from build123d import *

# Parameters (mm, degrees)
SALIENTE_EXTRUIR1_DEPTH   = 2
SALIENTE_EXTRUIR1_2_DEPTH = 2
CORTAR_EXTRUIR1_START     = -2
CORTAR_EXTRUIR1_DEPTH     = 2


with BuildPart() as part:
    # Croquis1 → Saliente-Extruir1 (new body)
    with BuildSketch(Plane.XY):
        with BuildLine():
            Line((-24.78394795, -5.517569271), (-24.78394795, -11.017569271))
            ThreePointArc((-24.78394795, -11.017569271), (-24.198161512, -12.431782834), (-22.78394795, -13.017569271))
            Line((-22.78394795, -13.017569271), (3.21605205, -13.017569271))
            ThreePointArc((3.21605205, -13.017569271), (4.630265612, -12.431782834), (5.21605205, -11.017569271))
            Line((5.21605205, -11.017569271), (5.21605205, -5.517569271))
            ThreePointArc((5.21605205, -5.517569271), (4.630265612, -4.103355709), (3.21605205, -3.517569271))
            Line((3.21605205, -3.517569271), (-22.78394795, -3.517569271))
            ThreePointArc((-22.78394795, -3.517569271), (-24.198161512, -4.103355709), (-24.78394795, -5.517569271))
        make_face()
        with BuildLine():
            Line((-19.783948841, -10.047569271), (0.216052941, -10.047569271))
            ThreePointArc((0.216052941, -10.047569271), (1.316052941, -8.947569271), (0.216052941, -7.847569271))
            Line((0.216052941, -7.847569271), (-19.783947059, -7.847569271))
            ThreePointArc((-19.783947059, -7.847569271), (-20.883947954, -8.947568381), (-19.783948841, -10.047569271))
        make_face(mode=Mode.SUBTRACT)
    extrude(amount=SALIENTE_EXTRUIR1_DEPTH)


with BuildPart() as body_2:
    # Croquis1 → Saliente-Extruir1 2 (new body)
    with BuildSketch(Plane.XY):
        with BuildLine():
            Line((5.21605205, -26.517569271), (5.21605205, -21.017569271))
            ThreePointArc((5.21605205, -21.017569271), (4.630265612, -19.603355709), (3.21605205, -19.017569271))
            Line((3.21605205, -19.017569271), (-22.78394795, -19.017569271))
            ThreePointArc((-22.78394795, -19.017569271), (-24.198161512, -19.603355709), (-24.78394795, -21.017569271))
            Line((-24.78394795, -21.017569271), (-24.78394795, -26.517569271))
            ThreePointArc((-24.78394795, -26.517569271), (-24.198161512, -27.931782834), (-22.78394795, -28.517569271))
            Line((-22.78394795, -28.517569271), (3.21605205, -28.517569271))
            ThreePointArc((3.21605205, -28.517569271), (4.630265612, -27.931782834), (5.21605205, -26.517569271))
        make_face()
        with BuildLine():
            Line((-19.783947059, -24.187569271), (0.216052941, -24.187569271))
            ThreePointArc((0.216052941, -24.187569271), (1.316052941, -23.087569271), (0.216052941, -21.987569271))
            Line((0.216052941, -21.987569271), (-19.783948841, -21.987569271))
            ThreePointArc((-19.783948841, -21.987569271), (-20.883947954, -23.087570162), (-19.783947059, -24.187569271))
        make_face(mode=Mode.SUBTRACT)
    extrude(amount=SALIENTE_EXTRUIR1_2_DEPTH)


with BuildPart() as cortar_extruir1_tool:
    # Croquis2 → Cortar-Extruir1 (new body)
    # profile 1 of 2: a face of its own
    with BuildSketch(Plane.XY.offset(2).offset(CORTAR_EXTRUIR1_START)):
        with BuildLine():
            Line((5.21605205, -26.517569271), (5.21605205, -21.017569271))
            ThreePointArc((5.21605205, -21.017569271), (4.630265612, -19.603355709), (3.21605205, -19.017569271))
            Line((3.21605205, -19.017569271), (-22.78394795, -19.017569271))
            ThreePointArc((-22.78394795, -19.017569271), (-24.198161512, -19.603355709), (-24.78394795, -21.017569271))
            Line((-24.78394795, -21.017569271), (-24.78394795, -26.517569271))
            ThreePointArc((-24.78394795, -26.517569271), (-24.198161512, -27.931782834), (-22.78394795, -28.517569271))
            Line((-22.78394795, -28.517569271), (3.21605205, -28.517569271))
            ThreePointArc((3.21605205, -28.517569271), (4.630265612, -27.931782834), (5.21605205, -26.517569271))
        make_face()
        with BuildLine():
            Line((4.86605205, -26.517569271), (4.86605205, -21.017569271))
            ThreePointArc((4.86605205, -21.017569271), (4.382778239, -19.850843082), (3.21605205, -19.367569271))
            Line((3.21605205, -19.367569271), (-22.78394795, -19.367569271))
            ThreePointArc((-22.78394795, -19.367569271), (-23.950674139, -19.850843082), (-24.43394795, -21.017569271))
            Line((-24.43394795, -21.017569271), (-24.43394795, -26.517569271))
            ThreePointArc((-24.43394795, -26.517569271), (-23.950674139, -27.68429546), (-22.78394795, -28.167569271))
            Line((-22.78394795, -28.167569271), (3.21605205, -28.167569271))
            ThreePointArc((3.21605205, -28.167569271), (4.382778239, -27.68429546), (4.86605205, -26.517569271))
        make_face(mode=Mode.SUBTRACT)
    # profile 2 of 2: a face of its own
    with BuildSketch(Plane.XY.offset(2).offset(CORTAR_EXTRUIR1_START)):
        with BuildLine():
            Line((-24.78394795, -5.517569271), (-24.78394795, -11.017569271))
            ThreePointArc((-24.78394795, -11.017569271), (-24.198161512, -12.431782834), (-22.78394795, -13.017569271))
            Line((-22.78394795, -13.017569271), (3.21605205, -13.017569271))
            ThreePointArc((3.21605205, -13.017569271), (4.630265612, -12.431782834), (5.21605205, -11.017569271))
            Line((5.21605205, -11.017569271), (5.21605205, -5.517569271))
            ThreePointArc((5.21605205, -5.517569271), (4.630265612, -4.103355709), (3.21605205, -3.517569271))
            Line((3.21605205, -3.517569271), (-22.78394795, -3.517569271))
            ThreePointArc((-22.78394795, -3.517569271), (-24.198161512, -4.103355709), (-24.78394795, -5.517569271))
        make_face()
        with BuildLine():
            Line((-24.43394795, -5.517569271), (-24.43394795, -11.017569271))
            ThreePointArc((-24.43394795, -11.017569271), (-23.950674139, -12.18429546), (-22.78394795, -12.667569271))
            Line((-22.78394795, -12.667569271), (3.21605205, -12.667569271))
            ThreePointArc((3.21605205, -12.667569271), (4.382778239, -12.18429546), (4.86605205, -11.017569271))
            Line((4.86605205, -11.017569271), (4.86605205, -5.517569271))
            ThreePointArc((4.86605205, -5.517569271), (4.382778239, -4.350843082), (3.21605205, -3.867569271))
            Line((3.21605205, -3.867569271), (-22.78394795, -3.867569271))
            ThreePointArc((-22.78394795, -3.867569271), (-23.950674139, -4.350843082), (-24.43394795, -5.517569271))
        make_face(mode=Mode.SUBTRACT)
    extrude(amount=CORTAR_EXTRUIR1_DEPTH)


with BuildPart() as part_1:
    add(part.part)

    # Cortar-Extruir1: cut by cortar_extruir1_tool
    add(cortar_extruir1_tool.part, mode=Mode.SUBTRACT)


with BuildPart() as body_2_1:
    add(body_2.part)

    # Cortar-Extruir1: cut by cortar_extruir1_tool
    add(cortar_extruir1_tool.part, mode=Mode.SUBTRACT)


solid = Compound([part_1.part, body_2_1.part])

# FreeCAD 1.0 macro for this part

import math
import FreeCAD as App
import Part
import Sketcher

V = App.Vector
Q = App.Units.Quantity

doc = App.newDocument("Part")
body = doc.addObject("PartDesign::Body", "Body")

# Sketch on XY plane
sketch1 = body.newObject("Sketcher::SketchObject", "Sketch")
sketch1.AttachmentSupport = (doc.getObject("XY_Plane"), [""])
sketch1.MapMode = "FlatFace"
sketch1.addGeometry(Part.LineSegment(V(-24.8, -5.5, 0), V(-24.8, -11, 0)), False)
sketch1.addGeometry(Part.ArcOfCircle(Part.Circle(V(-22.8, -11, 0), V(0, 0, 1), 2), math.radians(180), math.radians(270)), False)
sketch1.addGeometry(Part.LineSegment(V(-22.8, -13, 0), V(3.2, -13, 0)), False)
sketch1.addGeometry(Part.ArcOfCircle(Part.Circle(V(3.2, -11, 0), V(0, 0, 1), 2), math.radians(-90), math.radians(0)), False)
sketch1.addGeometry(Part.LineSegment(V(5.2, -11, 0), V(5.2, -5.5, 0)), False)
sketch1.addGeometry(Part.ArcOfCircle(Part.Circle(V(3.2, -5.5, 0), V(0, 0, 1), 2), math.radians(0), math.radians(90)), False)
sketch1.addGeometry(Part.LineSegment(V(3.2, -3.5, 0), V(-22.8, -3.5, 0)), False)
sketch1.addGeometry(Part.ArcOfCircle(Part.Circle(V(-22.8, -5.5, 0), V(0, 0, 1), 2), math.radians(90), math.radians(180)), False)
sketch1.addGeometry(Part.LineSegment(V(0.2, -10, 0), V(-19.8, -10, 0)), False)
sketch1.addGeometry(Part.ArcOfCircle(Part.Circle(V(-19.8, -8.9, 0), V(0, 0, 1), 1.1), math.radians(90), math.radians(270)), False)
sketch1.addGeometry(Part.LineSegment(V(-19.8, -7.8, 0), V(0.2, -7.8, 0)), False)
sketch1.addGeometry(Part.ArcOfCircle(Part.Circle(V(0.2, -8.9, 0), V(0, 0, 1), 1.1), math.radians(-90), math.radians(90)), False)
sketch1.addConstraint(Sketcher.Constraint("Tangent", 0, 2, 1, 1))
sketch1.addConstraint(Sketcher.Constraint("Tangent", 1, 2, 2, 1))
sketch1.addConstraint(Sketcher.Constraint("Tangent", 2, 2, 3, 1))
sketch1.addConstraint(Sketcher.Constraint("Tangent", 3, 2, 4, 1))
sketch1.addConstraint(Sketcher.Constraint("Tangent", 4, 2, 5, 1))
sketch1.addConstraint(Sketcher.Constraint("Tangent", 5, 2, 6, 1))
sketch1.addConstraint(Sketcher.Constraint("Tangent", 6, 2, 7, 1))
sketch1.addConstraint(Sketcher.Constraint("Tangent", 7, 2, 0, 1))
sketch1.addConstraint(Sketcher.Constraint("Tangent", 8, 2, 9, 2))
sketch1.addConstraint(Sketcher.Constraint("Tangent", 9, 1, 10, 1))
sketch1.addConstraint(Sketcher.Constraint("Tangent", 10, 2, 11, 2))
sketch1.addConstraint(Sketcher.Constraint("Tangent", 11, 1, 8, 1))
sketch1.addConstraint(Sketcher.Constraint("Vertical", 0))
sketch1.addConstraint(Sketcher.Constraint("Horizontal", 2))
sketch1.addConstraint(Sketcher.Constraint("Vertical", 4))
sketch1.addConstraint(Sketcher.Constraint("Horizontal", 6))
sketch1.addConstraint(Sketcher.Constraint("Horizontal", 8))
sketch1.addConstraint(Sketcher.Constraint("Horizontal", 10))
sketch1.addConstraint(Sketcher.Constraint("Equal", 1, 3))
sketch1.addConstraint(Sketcher.Constraint("Equal", 3, 5))
sketch1.addConstraint(Sketcher.Constraint("Equal", 5, 7))
sketch1.addConstraint(Sketcher.Constraint("Radius", 1, Q("2 mm")))
sketch1.addConstraint(Sketcher.Constraint("Radius", 9, Q("1.1 mm")))
sketch1.addConstraint(Sketcher.Constraint("DistanceX", 2, 1, 2, 2, Q("26 mm")))
sketch1.addConstraint(Sketcher.Constraint("DistanceX", 8, 2, 8, 1, Q("20.000002 mm")))
sketch1.addConstraint(Sketcher.Constraint("DistanceY", 0, 2, 0, 1, Q("5.5 mm")))
sketch1.addConstraint(Sketcher.Constraint("DistanceX", 1, 3, 9, 3, Q("3 mm")))
sketch1.addConstraint(Sketcher.Constraint("DistanceY", 1, 3, 9, 3, Q("2.07 mm")))
sketch1.addConstraint(Sketcher.Constraint("DistanceY", 1, 3, -1, 1, Q("11.017569 mm")))
sketch1.addConstraint(Sketcher.Constraint("DistanceX", 8, 2, -1, 1, Q("19.783949 mm")))
pad1 = body.newObject("PartDesign::Pad", "Pad")
pad1.Profile = sketch1
pad1.Length = 2
body2 = doc.addObject("PartDesign::Body", "Body001")

# Sketch on XY plane
sketch2 = body2.newObject("Sketcher::SketchObject", "Sketch001")
sketch2.AttachmentSupport = (doc.getObject("XY_Plane001"), [""])
sketch2.MapMode = "FlatFace"
sketch2.addGeometry(Part.LineSegment(V(5.2, -26.5, 0), V(5.2, -21, 0)), False)
sketch2.addGeometry(Part.ArcOfCircle(Part.Circle(V(3.2, -21, 0), V(0, 0, 1), 2), math.radians(0), math.radians(90)), False)
sketch2.addGeometry(Part.LineSegment(V(3.2, -19, 0), V(-22.8, -19, 0)), False)
sketch2.addGeometry(Part.ArcOfCircle(Part.Circle(V(-22.8, -21, 0), V(0, 0, 1), 2), math.radians(90), math.radians(180)), False)
sketch2.addGeometry(Part.LineSegment(V(-24.8, -21, 0), V(-24.8, -26.5, 0)), False)
sketch2.addGeometry(Part.ArcOfCircle(Part.Circle(V(-22.8, -26.5, 0), V(0, 0, 1), 2), math.radians(180), math.radians(270)), False)
sketch2.addGeometry(Part.LineSegment(V(-22.8, -28.5, 0), V(3.2, -28.5, 0)), False)
sketch2.addGeometry(Part.ArcOfCircle(Part.Circle(V(3.2, -26.5, 0), V(0, 0, 1), 2), math.radians(-90), math.radians(0)), False)
sketch2.addGeometry(Part.LineSegment(V(0.2, -24.2, 0), V(-19.8, -24.2, 0)), False)
sketch2.addGeometry(Part.ArcOfCircle(Part.Circle(V(-19.8, -23.1, 0), V(0, 0, 1), 1.1), math.radians(90), math.radians(270)), False)
sketch2.addGeometry(Part.LineSegment(V(-19.8, -22, 0), V(0.2, -22, 0)), False)
sketch2.addGeometry(Part.ArcOfCircle(Part.Circle(V(0.2, -23.1, 0), V(0, 0, 1), 1.1), math.radians(-90), math.radians(90)), False)
sketch2.addConstraint(Sketcher.Constraint("Tangent", 0, 2, 1, 1))
sketch2.addConstraint(Sketcher.Constraint("Tangent", 1, 2, 2, 1))
sketch2.addConstraint(Sketcher.Constraint("Tangent", 2, 2, 3, 1))
sketch2.addConstraint(Sketcher.Constraint("Tangent", 3, 2, 4, 1))
sketch2.addConstraint(Sketcher.Constraint("Tangent", 4, 2, 5, 1))
sketch2.addConstraint(Sketcher.Constraint("Tangent", 5, 2, 6, 1))
sketch2.addConstraint(Sketcher.Constraint("Tangent", 6, 2, 7, 1))
sketch2.addConstraint(Sketcher.Constraint("Tangent", 7, 2, 0, 1))
sketch2.addConstraint(Sketcher.Constraint("Tangent", 8, 2, 9, 2))
sketch2.addConstraint(Sketcher.Constraint("Tangent", 9, 1, 10, 1))
sketch2.addConstraint(Sketcher.Constraint("Tangent", 10, 2, 11, 2))
sketch2.addConstraint(Sketcher.Constraint("Tangent", 11, 1, 8, 1))
sketch2.addConstraint(Sketcher.Constraint("Vertical", 0))
sketch2.addConstraint(Sketcher.Constraint("Horizontal", 2))
sketch2.addConstraint(Sketcher.Constraint("Vertical", 4))
sketch2.addConstraint(Sketcher.Constraint("Horizontal", 6))
sketch2.addConstraint(Sketcher.Constraint("Horizontal", 8))
sketch2.addConstraint(Sketcher.Constraint("Horizontal", 10))
sketch2.addConstraint(Sketcher.Constraint("Equal", 1, 3))
sketch2.addConstraint(Sketcher.Constraint("Equal", 3, 5))
sketch2.addConstraint(Sketcher.Constraint("Equal", 5, 7))
sketch2.addConstraint(Sketcher.Constraint("Radius", 1, Q("2 mm")))
sketch2.addConstraint(Sketcher.Constraint("Radius", 9, Q("1.1 mm")))
sketch2.addConstraint(Sketcher.Constraint("DistanceX", 2, 2, 2, 1, Q("26 mm")))
sketch2.addConstraint(Sketcher.Constraint("DistanceX", 8, 2, 8, 1, Q("20 mm")))
sketch2.addConstraint(Sketcher.Constraint("DistanceY", 0, 1, 0, 2, Q("5.5 mm")))
sketch2.addConstraint(Sketcher.Constraint("DistanceX", 3, 3, 9, 3, Q("3 mm")))
sketch2.addConstraint(Sketcher.Constraint("DistanceY", 9, 3, 3, 3, Q("2.07 mm")))
sketch2.addConstraint(Sketcher.Constraint("DistanceY", 1, 3, -1, 1, Q("21.017569 mm")))
sketch2.addConstraint(Sketcher.Constraint("DistanceX", 9, 1, -1, 1, Q("19.783949 mm")))
pad2 = body2.newObject("PartDesign::Pad", "Pad001")
pad2.Profile = sketch2
pad2.Length = 2
body3 = doc.addObject("PartDesign::Body", "Body002")
body3.AllowCompound = True

# Sketch on XY plane
sketch3 = body3.newObject("Sketcher::SketchObject", "Sketch002")
sketch3.AttachmentSupport = (doc.getObject("XY_Plane002"), [""])
sketch3.MapMode = "FlatFace"
sketch3.addGeometry(Part.LineSegment(V(5.2, -26.5, 0), V(5.2, -21, 0)), False)
sketch3.addGeometry(Part.ArcOfCircle(Part.Circle(V(3.2, -21, 0), V(0, 0, 1), 2), math.radians(0), math.radians(90)), False)
sketch3.addGeometry(Part.LineSegment(V(3.2, -19, 0), V(-22.8, -19, 0)), False)
sketch3.addGeometry(Part.ArcOfCircle(Part.Circle(V(-22.8, -21, 0), V(0, 0, 1), 2), math.radians(90), math.radians(180)), False)
sketch3.addGeometry(Part.LineSegment(V(-24.8, -21, 0), V(-24.8, -26.5, 0)), False)
sketch3.addGeometry(Part.ArcOfCircle(Part.Circle(V(-22.8, -26.5, 0), V(0, 0, 1), 2), math.radians(180), math.radians(270)), False)
sketch3.addGeometry(Part.LineSegment(V(-22.8, -28.5, 0), V(3.2, -28.5, 0)), False)
sketch3.addGeometry(Part.ArcOfCircle(Part.Circle(V(3.2, -26.5, 0), V(0, 0, 1), 2), math.radians(-90), math.radians(0)), False)
sketch3.addGeometry(Part.LineSegment(V(4.9, -21, 0), V(4.9, -26.5, 0)), False)
sketch3.addGeometry(Part.ArcOfCircle(Part.Circle(V(3.2, -26.5, 0), V(0, 0, 1), 1.6), math.radians(-90), math.radians(0)), False)
sketch3.addGeometry(Part.LineSegment(V(3.2, -28.2, 0), V(-22.8, -28.2, 0)), False)
sketch3.addGeometry(Part.ArcOfCircle(Part.Circle(V(-22.8, -26.5, 0), V(0, 0, 1), 1.6), math.radians(180), math.radians(270)), False)
sketch3.addGeometry(Part.LineSegment(V(-24.4, -26.5, 0), V(-24.4, -21, 0)), False)
sketch3.addGeometry(Part.ArcOfCircle(Part.Circle(V(-22.8, -21, 0), V(0, 0, 1), 1.6), math.radians(90), math.radians(180)), False)
sketch3.addGeometry(Part.LineSegment(V(-22.8, -19.4, 0), V(3.2, -19.4, 0)), False)
sketch3.addGeometry(Part.ArcOfCircle(Part.Circle(V(3.2, -21, 0), V(0, 0, 1), 1.6), math.radians(0), math.radians(90)), False)
sketch3.addGeometry(Part.LineSegment(V(-24.8, -5.5, 0), V(-24.8, -11, 0)), False)
sketch3.addGeometry(Part.ArcOfCircle(Part.Circle(V(-22.8, -11, 0), V(0, 0, 1), 2), math.radians(180), math.radians(270)), False)
sketch3.addGeometry(Part.LineSegment(V(-22.8, -13, 0), V(3.2, -13, 0)), False)
sketch3.addGeometry(Part.ArcOfCircle(Part.Circle(V(3.2, -11, 0), V(0, 0, 1), 2), math.radians(-90), math.radians(0)), False)
sketch3.addGeometry(Part.LineSegment(V(5.2, -11, 0), V(5.2, -5.5, 0)), False)
sketch3.addGeometry(Part.ArcOfCircle(Part.Circle(V(3.2, -5.5, 0), V(0, 0, 1), 2), math.radians(0), math.radians(90)), False)
sketch3.addGeometry(Part.LineSegment(V(3.2, -3.5, 0), V(-22.8, -3.5, 0)), False)
sketch3.addGeometry(Part.ArcOfCircle(Part.Circle(V(-22.8, -5.5, 0), V(0, 0, 1), 2), math.radians(90), math.radians(180)), False)
sketch3.addGeometry(Part.LineSegment(V(-24.4, -11, 0), V(-24.4, -5.5, 0)), False)
sketch3.addGeometry(Part.ArcOfCircle(Part.Circle(V(-22.8, -5.5, 0), V(0, 0, 1), 1.6), math.radians(90), math.radians(180)), False)
sketch3.addGeometry(Part.LineSegment(V(-22.8, -3.9, 0), V(3.2, -3.9, 0)), False)
sketch3.addGeometry(Part.ArcOfCircle(Part.Circle(V(3.2, -5.5, 0), V(0, 0, 1), 1.6), math.radians(0), math.radians(90)), False)
sketch3.addGeometry(Part.LineSegment(V(4.9, -5.5, 0), V(4.9, -11, 0)), False)
sketch3.addGeometry(Part.ArcOfCircle(Part.Circle(V(3.2, -11, 0), V(0, 0, 1), 1.6), math.radians(-90), math.radians(0)), False)
sketch3.addGeometry(Part.LineSegment(V(3.2, -12.7, 0), V(-22.8, -12.7, 0)), False)
sketch3.addGeometry(Part.ArcOfCircle(Part.Circle(V(-22.8, -11, 0), V(0, 0, 1), 1.6), math.radians(180), math.radians(270)), False)
sketch3.addConstraint(Sketcher.Constraint("Tangent", 0, 2, 1, 1))
sketch3.addConstraint(Sketcher.Constraint("Tangent", 1, 2, 2, 1))
sketch3.addConstraint(Sketcher.Constraint("Tangent", 2, 2, 3, 1))
sketch3.addConstraint(Sketcher.Constraint("Tangent", 3, 2, 4, 1))
sketch3.addConstraint(Sketcher.Constraint("Tangent", 4, 2, 5, 1))
sketch3.addConstraint(Sketcher.Constraint("Tangent", 5, 2, 6, 1))
sketch3.addConstraint(Sketcher.Constraint("Tangent", 6, 2, 7, 1))
sketch3.addConstraint(Sketcher.Constraint("Tangent", 7, 2, 0, 1))
sketch3.addConstraint(Sketcher.Constraint("Tangent", 8, 2, 9, 2))
sketch3.addConstraint(Sketcher.Constraint("Tangent", 9, 1, 10, 1))
sketch3.addConstraint(Sketcher.Constraint("Tangent", 10, 2, 11, 2))
sketch3.addConstraint(Sketcher.Constraint("Tangent", 11, 1, 12, 1))
sketch3.addConstraint(Sketcher.Constraint("Tangent", 12, 2, 13, 2))
sketch3.addConstraint(Sketcher.Constraint("Tangent", 13, 1, 14, 1))
sketch3.addConstraint(Sketcher.Constraint("Tangent", 14, 2, 15, 2))
sketch3.addConstraint(Sketcher.Constraint("Tangent", 15, 1, 8, 1))
sketch3.addConstraint(Sketcher.Constraint("Tangent", 16, 2, 17, 1))
sketch3.addConstraint(Sketcher.Constraint("Tangent", 17, 2, 18, 1))
sketch3.addConstraint(Sketcher.Constraint("Tangent", 18, 2, 19, 1))
sketch3.addConstraint(Sketcher.Constraint("Tangent", 19, 2, 20, 1))
sketch3.addConstraint(Sketcher.Constraint("Tangent", 20, 2, 21, 1))
sketch3.addConstraint(Sketcher.Constraint("Tangent", 21, 2, 22, 1))
sketch3.addConstraint(Sketcher.Constraint("Tangent", 22, 2, 23, 1))
sketch3.addConstraint(Sketcher.Constraint("Tangent", 23, 2, 16, 1))
sketch3.addConstraint(Sketcher.Constraint("Tangent", 24, 2, 25, 2))
sketch3.addConstraint(Sketcher.Constraint("Tangent", 25, 1, 26, 1))
sketch3.addConstraint(Sketcher.Constraint("Tangent", 26, 2, 27, 2))
sketch3.addConstraint(Sketcher.Constraint("Tangent", 27, 1, 28, 1))
sketch3.addConstraint(Sketcher.Constraint("Tangent", 28, 2, 29, 2))
sketch3.addConstraint(Sketcher.Constraint("Tangent", 29, 1, 30, 1))
sketch3.addConstraint(Sketcher.Constraint("Tangent", 30, 2, 31, 2))
sketch3.addConstraint(Sketcher.Constraint("Tangent", 31, 1, 24, 1))
sketch3.addConstraint(Sketcher.Constraint("Vertical", 0))
sketch3.addConstraint(Sketcher.Constraint("Horizontal", 2))
sketch3.addConstraint(Sketcher.Constraint("Vertical", 4))
sketch3.addConstraint(Sketcher.Constraint("Horizontal", 6))
sketch3.addConstraint(Sketcher.Constraint("Vertical", 8))
sketch3.addConstraint(Sketcher.Constraint("Horizontal", 10))
sketch3.addConstraint(Sketcher.Constraint("Vertical", 12))
sketch3.addConstraint(Sketcher.Constraint("Horizontal", 14))
sketch3.addConstraint(Sketcher.Constraint("Vertical", 16))
sketch3.addConstraint(Sketcher.Constraint("Horizontal", 18))
sketch3.addConstraint(Sketcher.Constraint("Vertical", 20))
sketch3.addConstraint(Sketcher.Constraint("Horizontal", 22))
sketch3.addConstraint(Sketcher.Constraint("Vertical", 24))
sketch3.addConstraint(Sketcher.Constraint("Horizontal", 26))
sketch3.addConstraint(Sketcher.Constraint("Vertical", 28))
sketch3.addConstraint(Sketcher.Constraint("Horizontal", 30))
sketch3.addConstraint(Sketcher.Constraint("Coincident", 9, 3, 7, 3))
sketch3.addConstraint(Sketcher.Constraint("Coincident", 11, 3, 5, 3))
sketch3.addConstraint(Sketcher.Constraint("Coincident", 13, 3, 3, 3))
sketch3.addConstraint(Sketcher.Constraint("Coincident", 25, 3, 23, 3))
sketch3.addConstraint(Sketcher.Constraint("Coincident", 27, 3, 21, 3))
sketch3.addConstraint(Sketcher.Constraint("Coincident", 29, 3, 19, 3))
sketch3.addConstraint(Sketcher.Constraint("Equal", 1, 3))
sketch3.addConstraint(Sketcher.Constraint("Equal", 3, 5))
sketch3.addConstraint(Sketcher.Constraint("Equal", 5, 7))
sketch3.addConstraint(Sketcher.Constraint("Equal", 13, 15))
sketch3.addConstraint(Sketcher.Constraint("Equal", 7, 17))
sketch3.addConstraint(Sketcher.Constraint("Equal", 17, 19))
sketch3.addConstraint(Sketcher.Constraint("Equal", 19, 21))
sketch3.addConstraint(Sketcher.Constraint("Equal", 21, 23))
sketch3.addConstraint(Sketcher.Constraint("Equal", 15, 25))
sketch3.addConstraint(Sketcher.Constraint("Equal", 29, 31))
sketch3.addConstraint(Sketcher.Constraint("Vertical", 13, 3, 17, 3))
sketch3.addConstraint(Sketcher.Constraint("Vertical", 15, 3, 19, 3))
sketch3.addConstraint(Sketcher.Constraint("Equal", 12, 16))
sketch3.addConstraint(Sketcher.Constraint("Radius", 1, Q("2 mm")))
sketch3.addConstraint(Sketcher.Constraint("DistanceX", 2, 2, 2, 1, Q("26 mm")))
sketch3.addConstraint(Sketcher.Constraint("Radius", 9, Q("1.65 mm")))
sketch3.addConstraint(Sketcher.Constraint("DistanceY", 0, 1, 0, 2, Q("5.5 mm")))
sketch3.addConstraint(Sketcher.Constraint("DistanceY", 13, 3, 17, 3, Q("10 mm")))
sketch3.addConstraint(Sketcher.Constraint("DistanceY", 1, 3, -1, 1, Q("21.017569 mm")))
sketch3.addConstraint(Sketcher.Constraint("DistanceX", -1, 1, 1, 3, Q("3.216052 mm")))
pad3 = body3.newObject("PartDesign::Pad", "Pad002")
pad3.Profile = sketch3
pad3.Length = 2
doc.recompute()

body4 = doc.addObject("PartDesign::Body", "Body003")
body4.BaseFeature = body3
boolean = body.newObject("PartDesign::Boolean", "Boolean")
boolean.Type = "Cut"
boolean.addObjects([body4])
doc.recompute()

boolean2 = body2.newObject("PartDesign::Boolean", "Boolean001")
boolean2.Type = "Cut"
boolean2.addObjects([body3])

doc.recompute()
